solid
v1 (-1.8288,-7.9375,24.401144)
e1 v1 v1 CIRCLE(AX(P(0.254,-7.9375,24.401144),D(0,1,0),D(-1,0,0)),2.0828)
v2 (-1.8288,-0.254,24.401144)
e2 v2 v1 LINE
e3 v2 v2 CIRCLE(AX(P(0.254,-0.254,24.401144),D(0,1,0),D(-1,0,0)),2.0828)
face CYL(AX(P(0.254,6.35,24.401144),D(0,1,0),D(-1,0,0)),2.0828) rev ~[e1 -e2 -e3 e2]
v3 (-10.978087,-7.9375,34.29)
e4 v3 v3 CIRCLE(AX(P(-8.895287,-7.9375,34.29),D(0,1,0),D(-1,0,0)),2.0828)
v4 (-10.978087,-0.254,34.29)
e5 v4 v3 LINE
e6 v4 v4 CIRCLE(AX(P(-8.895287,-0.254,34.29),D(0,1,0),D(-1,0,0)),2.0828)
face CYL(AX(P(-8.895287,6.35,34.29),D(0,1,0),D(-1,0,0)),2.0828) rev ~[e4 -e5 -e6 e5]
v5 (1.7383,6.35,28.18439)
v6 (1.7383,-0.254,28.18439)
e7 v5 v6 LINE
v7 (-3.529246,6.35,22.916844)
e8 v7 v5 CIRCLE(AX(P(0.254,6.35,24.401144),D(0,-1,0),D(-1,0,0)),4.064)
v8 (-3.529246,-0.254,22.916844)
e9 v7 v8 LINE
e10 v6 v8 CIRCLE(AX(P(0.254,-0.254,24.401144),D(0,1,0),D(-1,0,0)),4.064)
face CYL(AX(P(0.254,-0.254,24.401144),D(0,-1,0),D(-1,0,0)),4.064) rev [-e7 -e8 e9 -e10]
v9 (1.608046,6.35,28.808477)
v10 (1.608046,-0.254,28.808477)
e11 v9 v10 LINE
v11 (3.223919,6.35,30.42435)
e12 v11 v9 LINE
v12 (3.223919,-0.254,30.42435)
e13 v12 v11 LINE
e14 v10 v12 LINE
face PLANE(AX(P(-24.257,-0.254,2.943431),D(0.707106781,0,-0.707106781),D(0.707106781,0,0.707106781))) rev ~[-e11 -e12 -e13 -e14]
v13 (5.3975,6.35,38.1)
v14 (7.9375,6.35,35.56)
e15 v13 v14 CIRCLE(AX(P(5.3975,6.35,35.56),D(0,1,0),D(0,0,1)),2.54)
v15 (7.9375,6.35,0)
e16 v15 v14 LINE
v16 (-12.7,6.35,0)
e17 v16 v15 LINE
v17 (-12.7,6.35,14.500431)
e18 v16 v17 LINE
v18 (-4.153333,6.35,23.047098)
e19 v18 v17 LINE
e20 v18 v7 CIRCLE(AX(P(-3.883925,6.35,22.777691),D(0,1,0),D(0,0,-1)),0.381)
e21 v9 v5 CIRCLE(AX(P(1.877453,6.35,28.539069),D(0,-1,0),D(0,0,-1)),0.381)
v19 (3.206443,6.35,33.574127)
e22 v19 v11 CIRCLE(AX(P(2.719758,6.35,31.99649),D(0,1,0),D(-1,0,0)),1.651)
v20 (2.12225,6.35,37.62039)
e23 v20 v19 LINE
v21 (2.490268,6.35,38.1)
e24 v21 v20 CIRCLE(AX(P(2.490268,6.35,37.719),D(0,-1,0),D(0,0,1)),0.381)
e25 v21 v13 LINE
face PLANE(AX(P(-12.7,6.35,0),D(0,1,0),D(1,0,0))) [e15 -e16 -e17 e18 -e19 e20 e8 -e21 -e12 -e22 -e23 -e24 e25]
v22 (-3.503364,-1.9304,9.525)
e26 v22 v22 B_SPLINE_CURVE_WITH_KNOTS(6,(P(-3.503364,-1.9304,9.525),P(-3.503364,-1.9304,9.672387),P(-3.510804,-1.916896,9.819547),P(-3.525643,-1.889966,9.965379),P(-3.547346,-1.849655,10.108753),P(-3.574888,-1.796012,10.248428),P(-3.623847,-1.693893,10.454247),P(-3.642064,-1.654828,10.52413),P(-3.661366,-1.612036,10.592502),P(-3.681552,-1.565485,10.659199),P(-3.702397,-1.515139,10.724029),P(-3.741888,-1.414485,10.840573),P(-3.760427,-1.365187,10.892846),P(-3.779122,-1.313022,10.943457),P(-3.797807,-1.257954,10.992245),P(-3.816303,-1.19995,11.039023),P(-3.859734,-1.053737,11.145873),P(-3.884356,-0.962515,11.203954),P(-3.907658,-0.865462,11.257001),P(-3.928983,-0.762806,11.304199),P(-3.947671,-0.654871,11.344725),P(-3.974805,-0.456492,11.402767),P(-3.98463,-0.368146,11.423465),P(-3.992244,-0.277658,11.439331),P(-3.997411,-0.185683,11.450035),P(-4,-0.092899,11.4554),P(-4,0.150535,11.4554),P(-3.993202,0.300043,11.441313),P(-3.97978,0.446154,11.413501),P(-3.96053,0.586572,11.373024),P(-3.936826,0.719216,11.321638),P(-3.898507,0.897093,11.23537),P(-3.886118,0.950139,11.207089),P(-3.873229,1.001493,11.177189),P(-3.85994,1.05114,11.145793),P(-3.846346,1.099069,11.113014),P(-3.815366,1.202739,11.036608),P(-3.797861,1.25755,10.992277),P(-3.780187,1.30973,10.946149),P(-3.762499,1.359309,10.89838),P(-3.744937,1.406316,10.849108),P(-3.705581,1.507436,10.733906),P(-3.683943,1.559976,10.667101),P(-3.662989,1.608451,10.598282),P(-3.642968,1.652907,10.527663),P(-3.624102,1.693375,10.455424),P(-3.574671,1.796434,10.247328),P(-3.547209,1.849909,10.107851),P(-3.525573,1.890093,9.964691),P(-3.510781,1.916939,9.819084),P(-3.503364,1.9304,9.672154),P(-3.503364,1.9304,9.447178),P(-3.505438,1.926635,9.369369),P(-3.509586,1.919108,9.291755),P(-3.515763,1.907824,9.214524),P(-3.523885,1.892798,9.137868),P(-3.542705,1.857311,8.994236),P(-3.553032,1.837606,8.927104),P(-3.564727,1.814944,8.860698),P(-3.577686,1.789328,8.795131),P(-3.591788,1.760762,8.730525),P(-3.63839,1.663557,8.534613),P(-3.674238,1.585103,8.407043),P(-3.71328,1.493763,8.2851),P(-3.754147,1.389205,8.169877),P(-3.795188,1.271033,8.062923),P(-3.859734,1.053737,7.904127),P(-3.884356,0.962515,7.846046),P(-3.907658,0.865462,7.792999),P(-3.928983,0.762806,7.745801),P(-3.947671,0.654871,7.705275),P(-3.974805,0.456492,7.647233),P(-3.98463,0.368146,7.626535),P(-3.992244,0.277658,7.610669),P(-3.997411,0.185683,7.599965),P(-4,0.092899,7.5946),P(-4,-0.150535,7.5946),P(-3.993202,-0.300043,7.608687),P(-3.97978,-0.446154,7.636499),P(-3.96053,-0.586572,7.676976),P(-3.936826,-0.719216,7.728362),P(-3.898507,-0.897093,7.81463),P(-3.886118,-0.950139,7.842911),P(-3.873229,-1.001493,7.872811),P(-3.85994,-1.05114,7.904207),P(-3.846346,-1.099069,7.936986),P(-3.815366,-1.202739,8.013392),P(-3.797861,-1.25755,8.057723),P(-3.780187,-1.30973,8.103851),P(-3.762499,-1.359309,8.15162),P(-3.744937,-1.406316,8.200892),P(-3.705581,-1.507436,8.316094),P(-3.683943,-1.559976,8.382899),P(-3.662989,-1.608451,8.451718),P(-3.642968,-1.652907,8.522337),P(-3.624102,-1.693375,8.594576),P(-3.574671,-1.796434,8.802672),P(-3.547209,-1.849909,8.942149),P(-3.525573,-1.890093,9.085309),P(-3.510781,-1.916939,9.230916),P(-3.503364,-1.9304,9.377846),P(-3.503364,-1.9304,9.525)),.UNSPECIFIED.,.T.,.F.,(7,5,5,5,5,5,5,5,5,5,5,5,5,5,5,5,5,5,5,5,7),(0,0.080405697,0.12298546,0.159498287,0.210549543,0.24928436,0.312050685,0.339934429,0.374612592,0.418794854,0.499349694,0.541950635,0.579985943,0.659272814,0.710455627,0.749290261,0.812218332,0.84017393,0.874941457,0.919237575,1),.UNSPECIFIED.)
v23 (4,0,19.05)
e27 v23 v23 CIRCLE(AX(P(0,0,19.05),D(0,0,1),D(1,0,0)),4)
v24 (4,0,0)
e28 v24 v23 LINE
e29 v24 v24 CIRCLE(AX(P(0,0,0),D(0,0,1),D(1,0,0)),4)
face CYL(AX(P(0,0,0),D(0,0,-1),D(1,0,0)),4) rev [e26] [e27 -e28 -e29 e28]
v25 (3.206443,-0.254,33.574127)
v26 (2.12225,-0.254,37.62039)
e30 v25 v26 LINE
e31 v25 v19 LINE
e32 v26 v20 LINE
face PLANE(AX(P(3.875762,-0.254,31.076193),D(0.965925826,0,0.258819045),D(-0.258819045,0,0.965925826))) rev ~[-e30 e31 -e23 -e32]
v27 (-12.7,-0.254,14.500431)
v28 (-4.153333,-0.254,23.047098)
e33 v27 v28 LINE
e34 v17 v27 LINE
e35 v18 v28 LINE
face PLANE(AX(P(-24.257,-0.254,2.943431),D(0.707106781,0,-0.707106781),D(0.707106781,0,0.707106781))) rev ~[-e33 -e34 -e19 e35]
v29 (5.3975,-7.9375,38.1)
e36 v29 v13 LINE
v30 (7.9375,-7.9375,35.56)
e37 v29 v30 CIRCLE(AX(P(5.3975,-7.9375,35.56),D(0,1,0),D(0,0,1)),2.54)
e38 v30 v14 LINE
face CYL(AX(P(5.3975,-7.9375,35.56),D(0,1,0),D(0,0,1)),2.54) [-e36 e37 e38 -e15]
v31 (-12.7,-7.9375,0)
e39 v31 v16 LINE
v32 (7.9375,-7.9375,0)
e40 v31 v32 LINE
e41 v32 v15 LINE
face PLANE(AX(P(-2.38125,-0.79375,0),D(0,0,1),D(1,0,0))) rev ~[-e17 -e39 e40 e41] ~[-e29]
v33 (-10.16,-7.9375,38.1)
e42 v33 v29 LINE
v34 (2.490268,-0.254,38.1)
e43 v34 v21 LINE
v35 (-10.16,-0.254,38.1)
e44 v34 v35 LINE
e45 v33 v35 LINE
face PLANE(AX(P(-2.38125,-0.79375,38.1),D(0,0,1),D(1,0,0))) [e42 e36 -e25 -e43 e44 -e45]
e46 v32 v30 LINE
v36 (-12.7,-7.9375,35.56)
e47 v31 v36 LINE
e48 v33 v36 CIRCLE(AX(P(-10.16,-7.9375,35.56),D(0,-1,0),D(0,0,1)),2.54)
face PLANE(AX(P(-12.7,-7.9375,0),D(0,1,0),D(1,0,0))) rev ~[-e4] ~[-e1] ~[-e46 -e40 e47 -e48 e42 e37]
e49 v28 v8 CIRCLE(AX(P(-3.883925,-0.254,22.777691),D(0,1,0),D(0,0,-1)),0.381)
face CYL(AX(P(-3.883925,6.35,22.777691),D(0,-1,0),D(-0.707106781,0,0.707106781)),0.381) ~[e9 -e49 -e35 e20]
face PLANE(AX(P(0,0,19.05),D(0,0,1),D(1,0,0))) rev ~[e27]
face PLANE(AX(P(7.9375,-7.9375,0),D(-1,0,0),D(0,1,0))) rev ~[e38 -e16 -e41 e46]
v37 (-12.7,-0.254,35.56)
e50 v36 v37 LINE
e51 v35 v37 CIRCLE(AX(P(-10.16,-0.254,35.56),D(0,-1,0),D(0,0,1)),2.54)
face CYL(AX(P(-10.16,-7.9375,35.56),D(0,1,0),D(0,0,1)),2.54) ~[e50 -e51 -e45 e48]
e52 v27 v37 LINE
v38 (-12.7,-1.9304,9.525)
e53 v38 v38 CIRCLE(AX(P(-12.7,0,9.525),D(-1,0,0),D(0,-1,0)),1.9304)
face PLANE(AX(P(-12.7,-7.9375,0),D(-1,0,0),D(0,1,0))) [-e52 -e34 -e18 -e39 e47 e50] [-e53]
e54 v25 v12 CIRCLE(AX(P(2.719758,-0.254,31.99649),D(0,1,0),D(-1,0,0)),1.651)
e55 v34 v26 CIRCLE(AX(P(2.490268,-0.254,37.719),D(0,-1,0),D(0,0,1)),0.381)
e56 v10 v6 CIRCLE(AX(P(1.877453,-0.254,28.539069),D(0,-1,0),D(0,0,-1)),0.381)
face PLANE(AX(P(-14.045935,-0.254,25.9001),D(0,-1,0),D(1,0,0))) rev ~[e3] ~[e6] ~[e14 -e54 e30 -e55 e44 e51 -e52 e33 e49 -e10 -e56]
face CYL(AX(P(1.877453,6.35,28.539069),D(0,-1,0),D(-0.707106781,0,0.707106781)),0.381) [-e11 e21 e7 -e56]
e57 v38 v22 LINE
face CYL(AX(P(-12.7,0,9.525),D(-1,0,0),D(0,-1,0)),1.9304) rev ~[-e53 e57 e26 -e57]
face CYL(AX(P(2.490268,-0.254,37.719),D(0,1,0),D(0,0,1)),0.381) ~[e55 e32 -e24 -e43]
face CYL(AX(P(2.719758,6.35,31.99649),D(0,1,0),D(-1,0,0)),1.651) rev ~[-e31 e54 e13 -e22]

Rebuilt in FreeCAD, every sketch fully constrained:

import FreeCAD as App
import Part
import Sketcher
from FreeCAD import Vector
Q = App.Units.Quantity


def edges_at(feature, points):
    """Names of the edges that pass closest to the given points."""
    edges = feature.Shape.Edges
    near = lambda p: min(range(len(edges)), key=lambda i: edges[i].distToShape(Part.Vertex(*p))[0])
    return sorted({f"Edge{near(p) + 1}" for p in points})


def add_polygon(sketch, points):
    """Adds a closed chain of lines whose ends are joined by coincident constraints."""
    first, n = sketch.GeometryCount, len(points)
    for a, b in zip(points, points[1:] + points[:1]):
        sketch.addGeometry(Part.LineSegment(App.Vector(*a, 0), App.Vector(*b, 0)), False)
    for i in range(n):
        sketch.addConstraint(Sketcher.Constraint("Coincident", first + i, 2, first + (i + 1) % n, 1))

doc = App.newDocument("Part")
params = doc.addObject("Spreadsheet::Sheet", "Params")
for row, (alias, value) in enumerate([
    ("sketch1_width", "0.8125 in"),
    ("sketch1_height", "0.5625 in"),
    ("pad1_length", "1.5 in"),
    ("pocket1_length", "0.75 in"),
    ("sketch3_width", "1 in"),
    ("pocket2_length", "22.61794 mm"),
    ("sketch4_diameter", "0.13 in"),
    ("pocket3_length", "0.26 in"),
    ("sketch5_diameter", "0.164 in"),
    ("pocket4_length", "1 in"),
    ("sketch6_diameter", "0.32 in"),
    ("pocket5_length", "1 in"),
    ("fillet_radius", "0.015 in"),
    ("sketch7_diameter", "0.152 in"),
    ("pocket6_length", "15.3176 mm"),
    ("fillet2_radius", "0.1 in"),
], start=1):
    params.set(f"A{row}", alias)
    params.set(f"B{row}", "=" + value)
    params.setAlias(f"B{row}", alias)

body = doc.addObject("PartDesign::Body", "Body")

# Sketch on XY plane
sketch1 = doc.addObject("Sketcher::SketchObject", "Sketch")
body.addObject(sketch1)
sketch1.AttachmentSupport = (doc.XY_Plane, [""])
sketch1.MapMode = "FlatFace"
add_polygon(sketch1, [(-13, 6), (-13, -8), (8, -8), (8, 6)])  # lines 0-3
sketch1.addConstraint(Sketcher.Constraint("Vertical", 0))
sketch1.addConstraint(Sketcher.Constraint("Horizontal", 1))
sketch1.addConstraint(Sketcher.Constraint("Vertical", 2))
sketch1.addConstraint(Sketcher.Constraint("Horizontal", 3))
sketch1.addConstraint(Sketcher.Constraint("DistanceX", 0, 2, -1, 1, Q("0.5 in")))
sketch1.addConstraint(Sketcher.Constraint("DistanceX", 1, 1, 1, 2, Q("0.8125 in")))
sketch1.addConstraint(Sketcher.Constraint("DistanceY", 0, 2, 0, 1, Q("0.5625 in")))
sketch1.addConstraint(Sketcher.Constraint("DistanceY", -1, 1, 2, 2, Q("0.25 in")))
sketch1.setExpression("Constraints[9]", "Params.sketch1_width")
sketch1.setExpression("Constraints[10]", "Params.sketch1_height")
pad1 = doc.addObject("PartDesign::Pad", "Pad")
body.addObject(pad1)
pad1.Profile = sketch1
pad1.setExpression("Length", "Params.pad1_length")

# Sketch on XY plane
sketch2 = doc.addObject("Sketcher::SketchObject", "Sketch001")
body.addObject(sketch2)
sketch2.AttachmentSupport = (doc.XY_Plane, [""])
sketch2.MapMode = "FlatFace"
sketch2.addGeometry(Part.Circle(Vector(0, 0, 0), Vector(0, 0, 1), 4), False)
sketch2.addConstraint(Sketcher.Constraint("Coincident", 0, 3, -1, 1))
sketch2.addConstraint(Sketcher.Constraint("Diameter", 0, 8.0))
pocket1 = doc.addObject("PartDesign::Pocket", "Pocket")
body.addObject(pocket1)
pocket1.Profile = sketch2
pocket1.setExpression("Length", "Params.pocket1_length")
pocket1.Reversed = True

# Sketch on XZ plane
sketch3 = doc.addObject("Sketcher::SketchObject", "Sketch002")
body.addObject(sketch3)
sketch3.AttachmentSupport = (doc.XZ_Plane, [""])
sketch3.MapMode = "FlatFace"
sketch3.AttachmentOffset = App.Placement(Vector(0, 0, 0.01 * 25.4), App.Rotation())
add_polygon(sketch3, [(-24, 41), (-24, 3), (4, 31), (1, 41)])  # lines 0-3
sketch3.addConstraint(Sketcher.Constraint("Vertical", 0))
sketch3.addConstraint(Sketcher.Constraint("Horizontal", 3))
sketch3.addConstraint(Sketcher.Constraint("DistanceX", 3, 2, 3, 1, Q("1 in")))
sketch3.addConstraint(Sketcher.Constraint("Angle", 1, Q("45 deg")))
sketch3.addConstraint(Sketcher.Constraint("Angle", 2, Q("105 deg")))
sketch3.addConstraint(Sketcher.Constraint("DistanceX", 0, 2, -1, 1, Q("0.955 in")))
sketch3.addConstraint(Sketcher.Constraint("DistanceY", -1, 1, 2, 2, Q("1.625 in")))
sketch3.addConstraint(Sketcher.Constraint("DistanceY", 0, 2, 0, 1, 38.331569))
sketch3.setExpression("Constraints[6]", "Params.sketch3_width")
pocket2 = doc.addObject("PartDesign::Pocket", "Pocket001")
body.addObject(pocket2)
pocket2.Profile = sketch3
pocket2.setExpression("Length", "Params.pocket2_length")

# Sketch on XZ plane
sketch4 = doc.addObject("Sketcher::SketchObject", "Sketch003")
body.addObject(sketch4)
sketch4.AttachmentSupport = (doc.XZ_Plane, [""])
sketch4.MapMode = "FlatFace"
sketch4.AttachmentOffset = App.Placement(Vector(0, 0, -0.25 * 25.4), App.Rotation())
sketch4.addGeometry(Part.Circle(Vector(2.7, 32, 0), Vector(0, 0, 1), 1.7), False)
sketch4.addConstraint(Sketcher.Constraint("Diameter", 0, Q("0.13 in")))
sketch4.addConstraint(Sketcher.Constraint("DistanceX", -1, 1, 0, 3, 2.719758))
sketch4.addConstraint(Sketcher.Constraint("DistanceY", -1, 1, 0, 3, 31.99649))
sketch4.setExpression("Constraints[0]", "Params.sketch4_diameter")
pocket3 = doc.addObject("PartDesign::Pocket", "Pocket002")
body.addObject(pocket3)
pocket3.Profile = sketch4
pocket3.setExpression("Length", "Params.pocket3_length")
pocket3.Reversed = True

# Sketch on XZ plane
sketch5 = doc.addObject("Sketcher::SketchObject", "Sketch004")
body.addObject(sketch5)
sketch5.AttachmentSupport = (doc.XZ_Plane, [""])
sketch5.MapMode = "FlatFace"
sketch5.AttachmentOffset = App.Placement(Vector(0, 0, -0.25 * 25.4), App.Rotation())
sketch5.addGeometry(Part.Circle(Vector(0.3, 24.4, 0), Vector(0, 0, 1), 2.1), False)
sketch5.addGeometry(Part.Circle(Vector(-8.9, 34.3, 0), Vector(0, 0, 1), 2.1), False)
sketch5.addConstraint(Sketcher.Constraint("Equal", 0, 1))
sketch5.addConstraint(Sketcher.Constraint("Diameter", 0, Q("0.164 in")))
sketch5.addConstraint(Sketcher.Constraint("DistanceX", -1, 1, 0, 3, Q("0.01 in")))
sketch5.addConstraint(Sketcher.Constraint("DistanceY", -1, 1, 1, 3, Q("1.35 in")))
sketch5.addConstraint(Sketcher.Constraint("DistanceY", -1, 1, 0, 3, 24.401144))
sketch5.addConstraint(Sketcher.Constraint("DistanceX", 1, 3, -1, 1, 8.895287))
sketch5.setExpression("Constraints[1]", "Params.sketch5_diameter")
pocket4 = doc.addObject("PartDesign::Pocket", "Pocket003")
body.addObject(pocket4)
pocket4.Profile = sketch5
pocket4.setExpression("Length", "Params.pocket4_length")
pocket4.Reversed = True

# Sketch on XZ plane
sketch6 = doc.addObject("Sketcher::SketchObject", "Sketch005")
body.addObject(sketch6)
sketch6.AttachmentSupport = (doc.XZ_Plane, [""])
sketch6.MapMode = "FlatFace"
sketch6.AttachmentOffset = App.Placement(Vector(0, 0, 0.01 * 25.4), App.Rotation())
sketch6.addGeometry(Part.Circle(Vector(0.3, 24.4, 0), Vector(0, 0, 1), 4.1), False)
sketch6.addConstraint(Sketcher.Constraint("Diameter", 0, Q("0.32 in")))
sketch6.addConstraint(Sketcher.Constraint("DistanceX", -1, 1, 0, 3, Q("0.01 in")))
sketch6.addConstraint(Sketcher.Constraint("DistanceY", -1, 1, 0, 3, 24.401144))
sketch6.setExpression("Constraints[0]", "Params.sketch6_diameter")
pocket5 = doc.addObject("PartDesign::Pocket", "Pocket004")
body.addObject(pocket5)
pocket5.Profile = sketch6
pocket5.setExpression("Length", "Params.pocket5_length")
doc.recompute()

fillet = doc.addObject("PartDesign::Fillet", "Fillet")
body.addObject(fillet)
fillet.Base = (pocket5, edges_at(pocket5, [(-3.707, 3.048, 23.493), (1.162, 3.048, 28.362), (1.994, 3.048, 38.1)]))
fillet.setExpression("Radius", "Params.fillet_radius")

# Sketch on YZ plane
sketch7 = doc.addObject("Sketcher::SketchObject", "Sketch006")
body.addObject(sketch7)
sketch7.AttachmentSupport = (doc.YZ_Plane, [""])
sketch7.MapMode = "FlatFace"
sketch7.AttachmentOffset = App.Placement(Vector(0, 0, -0.5 * 25.4), App.Rotation())
sketch7.addGeometry(Part.Circle(Vector(0, 9.5, 0), Vector(0, 0, 1), 1.9), False)
sketch7.addConstraint(Sketcher.Constraint("PointOnObject", 0, 3, -2))
sketch7.addConstraint(Sketcher.Constraint("Diameter", 0, Q("0.152 in")))
sketch7.addConstraint(Sketcher.Constraint("DistanceY", -1, 1, 0, 3, Q("0.375 in")))
sketch7.setExpression("Constraints[1]", "Params.sketch7_diameter")
pocket6 = doc.addObject("PartDesign::Pocket", "Pocket005")
body.addObject(pocket6)
pocket6.Profile = sketch7
pocket6.setExpression("Length", "Params.pocket6_length")
pocket6.Reversed = True
doc.recompute()

fillet2 = doc.addObject("PartDesign::Fillet", "Fillet001")
body.addObject(fillet2)
fillet2.Base = (pocket6, edges_at(pocket6, [(-12.7, -4.096, 38.1), (7.938, -0.794, 38.1)]))
fillet2.setExpression("Radius", "Params.fillet2_radius")

doc.recompute()
